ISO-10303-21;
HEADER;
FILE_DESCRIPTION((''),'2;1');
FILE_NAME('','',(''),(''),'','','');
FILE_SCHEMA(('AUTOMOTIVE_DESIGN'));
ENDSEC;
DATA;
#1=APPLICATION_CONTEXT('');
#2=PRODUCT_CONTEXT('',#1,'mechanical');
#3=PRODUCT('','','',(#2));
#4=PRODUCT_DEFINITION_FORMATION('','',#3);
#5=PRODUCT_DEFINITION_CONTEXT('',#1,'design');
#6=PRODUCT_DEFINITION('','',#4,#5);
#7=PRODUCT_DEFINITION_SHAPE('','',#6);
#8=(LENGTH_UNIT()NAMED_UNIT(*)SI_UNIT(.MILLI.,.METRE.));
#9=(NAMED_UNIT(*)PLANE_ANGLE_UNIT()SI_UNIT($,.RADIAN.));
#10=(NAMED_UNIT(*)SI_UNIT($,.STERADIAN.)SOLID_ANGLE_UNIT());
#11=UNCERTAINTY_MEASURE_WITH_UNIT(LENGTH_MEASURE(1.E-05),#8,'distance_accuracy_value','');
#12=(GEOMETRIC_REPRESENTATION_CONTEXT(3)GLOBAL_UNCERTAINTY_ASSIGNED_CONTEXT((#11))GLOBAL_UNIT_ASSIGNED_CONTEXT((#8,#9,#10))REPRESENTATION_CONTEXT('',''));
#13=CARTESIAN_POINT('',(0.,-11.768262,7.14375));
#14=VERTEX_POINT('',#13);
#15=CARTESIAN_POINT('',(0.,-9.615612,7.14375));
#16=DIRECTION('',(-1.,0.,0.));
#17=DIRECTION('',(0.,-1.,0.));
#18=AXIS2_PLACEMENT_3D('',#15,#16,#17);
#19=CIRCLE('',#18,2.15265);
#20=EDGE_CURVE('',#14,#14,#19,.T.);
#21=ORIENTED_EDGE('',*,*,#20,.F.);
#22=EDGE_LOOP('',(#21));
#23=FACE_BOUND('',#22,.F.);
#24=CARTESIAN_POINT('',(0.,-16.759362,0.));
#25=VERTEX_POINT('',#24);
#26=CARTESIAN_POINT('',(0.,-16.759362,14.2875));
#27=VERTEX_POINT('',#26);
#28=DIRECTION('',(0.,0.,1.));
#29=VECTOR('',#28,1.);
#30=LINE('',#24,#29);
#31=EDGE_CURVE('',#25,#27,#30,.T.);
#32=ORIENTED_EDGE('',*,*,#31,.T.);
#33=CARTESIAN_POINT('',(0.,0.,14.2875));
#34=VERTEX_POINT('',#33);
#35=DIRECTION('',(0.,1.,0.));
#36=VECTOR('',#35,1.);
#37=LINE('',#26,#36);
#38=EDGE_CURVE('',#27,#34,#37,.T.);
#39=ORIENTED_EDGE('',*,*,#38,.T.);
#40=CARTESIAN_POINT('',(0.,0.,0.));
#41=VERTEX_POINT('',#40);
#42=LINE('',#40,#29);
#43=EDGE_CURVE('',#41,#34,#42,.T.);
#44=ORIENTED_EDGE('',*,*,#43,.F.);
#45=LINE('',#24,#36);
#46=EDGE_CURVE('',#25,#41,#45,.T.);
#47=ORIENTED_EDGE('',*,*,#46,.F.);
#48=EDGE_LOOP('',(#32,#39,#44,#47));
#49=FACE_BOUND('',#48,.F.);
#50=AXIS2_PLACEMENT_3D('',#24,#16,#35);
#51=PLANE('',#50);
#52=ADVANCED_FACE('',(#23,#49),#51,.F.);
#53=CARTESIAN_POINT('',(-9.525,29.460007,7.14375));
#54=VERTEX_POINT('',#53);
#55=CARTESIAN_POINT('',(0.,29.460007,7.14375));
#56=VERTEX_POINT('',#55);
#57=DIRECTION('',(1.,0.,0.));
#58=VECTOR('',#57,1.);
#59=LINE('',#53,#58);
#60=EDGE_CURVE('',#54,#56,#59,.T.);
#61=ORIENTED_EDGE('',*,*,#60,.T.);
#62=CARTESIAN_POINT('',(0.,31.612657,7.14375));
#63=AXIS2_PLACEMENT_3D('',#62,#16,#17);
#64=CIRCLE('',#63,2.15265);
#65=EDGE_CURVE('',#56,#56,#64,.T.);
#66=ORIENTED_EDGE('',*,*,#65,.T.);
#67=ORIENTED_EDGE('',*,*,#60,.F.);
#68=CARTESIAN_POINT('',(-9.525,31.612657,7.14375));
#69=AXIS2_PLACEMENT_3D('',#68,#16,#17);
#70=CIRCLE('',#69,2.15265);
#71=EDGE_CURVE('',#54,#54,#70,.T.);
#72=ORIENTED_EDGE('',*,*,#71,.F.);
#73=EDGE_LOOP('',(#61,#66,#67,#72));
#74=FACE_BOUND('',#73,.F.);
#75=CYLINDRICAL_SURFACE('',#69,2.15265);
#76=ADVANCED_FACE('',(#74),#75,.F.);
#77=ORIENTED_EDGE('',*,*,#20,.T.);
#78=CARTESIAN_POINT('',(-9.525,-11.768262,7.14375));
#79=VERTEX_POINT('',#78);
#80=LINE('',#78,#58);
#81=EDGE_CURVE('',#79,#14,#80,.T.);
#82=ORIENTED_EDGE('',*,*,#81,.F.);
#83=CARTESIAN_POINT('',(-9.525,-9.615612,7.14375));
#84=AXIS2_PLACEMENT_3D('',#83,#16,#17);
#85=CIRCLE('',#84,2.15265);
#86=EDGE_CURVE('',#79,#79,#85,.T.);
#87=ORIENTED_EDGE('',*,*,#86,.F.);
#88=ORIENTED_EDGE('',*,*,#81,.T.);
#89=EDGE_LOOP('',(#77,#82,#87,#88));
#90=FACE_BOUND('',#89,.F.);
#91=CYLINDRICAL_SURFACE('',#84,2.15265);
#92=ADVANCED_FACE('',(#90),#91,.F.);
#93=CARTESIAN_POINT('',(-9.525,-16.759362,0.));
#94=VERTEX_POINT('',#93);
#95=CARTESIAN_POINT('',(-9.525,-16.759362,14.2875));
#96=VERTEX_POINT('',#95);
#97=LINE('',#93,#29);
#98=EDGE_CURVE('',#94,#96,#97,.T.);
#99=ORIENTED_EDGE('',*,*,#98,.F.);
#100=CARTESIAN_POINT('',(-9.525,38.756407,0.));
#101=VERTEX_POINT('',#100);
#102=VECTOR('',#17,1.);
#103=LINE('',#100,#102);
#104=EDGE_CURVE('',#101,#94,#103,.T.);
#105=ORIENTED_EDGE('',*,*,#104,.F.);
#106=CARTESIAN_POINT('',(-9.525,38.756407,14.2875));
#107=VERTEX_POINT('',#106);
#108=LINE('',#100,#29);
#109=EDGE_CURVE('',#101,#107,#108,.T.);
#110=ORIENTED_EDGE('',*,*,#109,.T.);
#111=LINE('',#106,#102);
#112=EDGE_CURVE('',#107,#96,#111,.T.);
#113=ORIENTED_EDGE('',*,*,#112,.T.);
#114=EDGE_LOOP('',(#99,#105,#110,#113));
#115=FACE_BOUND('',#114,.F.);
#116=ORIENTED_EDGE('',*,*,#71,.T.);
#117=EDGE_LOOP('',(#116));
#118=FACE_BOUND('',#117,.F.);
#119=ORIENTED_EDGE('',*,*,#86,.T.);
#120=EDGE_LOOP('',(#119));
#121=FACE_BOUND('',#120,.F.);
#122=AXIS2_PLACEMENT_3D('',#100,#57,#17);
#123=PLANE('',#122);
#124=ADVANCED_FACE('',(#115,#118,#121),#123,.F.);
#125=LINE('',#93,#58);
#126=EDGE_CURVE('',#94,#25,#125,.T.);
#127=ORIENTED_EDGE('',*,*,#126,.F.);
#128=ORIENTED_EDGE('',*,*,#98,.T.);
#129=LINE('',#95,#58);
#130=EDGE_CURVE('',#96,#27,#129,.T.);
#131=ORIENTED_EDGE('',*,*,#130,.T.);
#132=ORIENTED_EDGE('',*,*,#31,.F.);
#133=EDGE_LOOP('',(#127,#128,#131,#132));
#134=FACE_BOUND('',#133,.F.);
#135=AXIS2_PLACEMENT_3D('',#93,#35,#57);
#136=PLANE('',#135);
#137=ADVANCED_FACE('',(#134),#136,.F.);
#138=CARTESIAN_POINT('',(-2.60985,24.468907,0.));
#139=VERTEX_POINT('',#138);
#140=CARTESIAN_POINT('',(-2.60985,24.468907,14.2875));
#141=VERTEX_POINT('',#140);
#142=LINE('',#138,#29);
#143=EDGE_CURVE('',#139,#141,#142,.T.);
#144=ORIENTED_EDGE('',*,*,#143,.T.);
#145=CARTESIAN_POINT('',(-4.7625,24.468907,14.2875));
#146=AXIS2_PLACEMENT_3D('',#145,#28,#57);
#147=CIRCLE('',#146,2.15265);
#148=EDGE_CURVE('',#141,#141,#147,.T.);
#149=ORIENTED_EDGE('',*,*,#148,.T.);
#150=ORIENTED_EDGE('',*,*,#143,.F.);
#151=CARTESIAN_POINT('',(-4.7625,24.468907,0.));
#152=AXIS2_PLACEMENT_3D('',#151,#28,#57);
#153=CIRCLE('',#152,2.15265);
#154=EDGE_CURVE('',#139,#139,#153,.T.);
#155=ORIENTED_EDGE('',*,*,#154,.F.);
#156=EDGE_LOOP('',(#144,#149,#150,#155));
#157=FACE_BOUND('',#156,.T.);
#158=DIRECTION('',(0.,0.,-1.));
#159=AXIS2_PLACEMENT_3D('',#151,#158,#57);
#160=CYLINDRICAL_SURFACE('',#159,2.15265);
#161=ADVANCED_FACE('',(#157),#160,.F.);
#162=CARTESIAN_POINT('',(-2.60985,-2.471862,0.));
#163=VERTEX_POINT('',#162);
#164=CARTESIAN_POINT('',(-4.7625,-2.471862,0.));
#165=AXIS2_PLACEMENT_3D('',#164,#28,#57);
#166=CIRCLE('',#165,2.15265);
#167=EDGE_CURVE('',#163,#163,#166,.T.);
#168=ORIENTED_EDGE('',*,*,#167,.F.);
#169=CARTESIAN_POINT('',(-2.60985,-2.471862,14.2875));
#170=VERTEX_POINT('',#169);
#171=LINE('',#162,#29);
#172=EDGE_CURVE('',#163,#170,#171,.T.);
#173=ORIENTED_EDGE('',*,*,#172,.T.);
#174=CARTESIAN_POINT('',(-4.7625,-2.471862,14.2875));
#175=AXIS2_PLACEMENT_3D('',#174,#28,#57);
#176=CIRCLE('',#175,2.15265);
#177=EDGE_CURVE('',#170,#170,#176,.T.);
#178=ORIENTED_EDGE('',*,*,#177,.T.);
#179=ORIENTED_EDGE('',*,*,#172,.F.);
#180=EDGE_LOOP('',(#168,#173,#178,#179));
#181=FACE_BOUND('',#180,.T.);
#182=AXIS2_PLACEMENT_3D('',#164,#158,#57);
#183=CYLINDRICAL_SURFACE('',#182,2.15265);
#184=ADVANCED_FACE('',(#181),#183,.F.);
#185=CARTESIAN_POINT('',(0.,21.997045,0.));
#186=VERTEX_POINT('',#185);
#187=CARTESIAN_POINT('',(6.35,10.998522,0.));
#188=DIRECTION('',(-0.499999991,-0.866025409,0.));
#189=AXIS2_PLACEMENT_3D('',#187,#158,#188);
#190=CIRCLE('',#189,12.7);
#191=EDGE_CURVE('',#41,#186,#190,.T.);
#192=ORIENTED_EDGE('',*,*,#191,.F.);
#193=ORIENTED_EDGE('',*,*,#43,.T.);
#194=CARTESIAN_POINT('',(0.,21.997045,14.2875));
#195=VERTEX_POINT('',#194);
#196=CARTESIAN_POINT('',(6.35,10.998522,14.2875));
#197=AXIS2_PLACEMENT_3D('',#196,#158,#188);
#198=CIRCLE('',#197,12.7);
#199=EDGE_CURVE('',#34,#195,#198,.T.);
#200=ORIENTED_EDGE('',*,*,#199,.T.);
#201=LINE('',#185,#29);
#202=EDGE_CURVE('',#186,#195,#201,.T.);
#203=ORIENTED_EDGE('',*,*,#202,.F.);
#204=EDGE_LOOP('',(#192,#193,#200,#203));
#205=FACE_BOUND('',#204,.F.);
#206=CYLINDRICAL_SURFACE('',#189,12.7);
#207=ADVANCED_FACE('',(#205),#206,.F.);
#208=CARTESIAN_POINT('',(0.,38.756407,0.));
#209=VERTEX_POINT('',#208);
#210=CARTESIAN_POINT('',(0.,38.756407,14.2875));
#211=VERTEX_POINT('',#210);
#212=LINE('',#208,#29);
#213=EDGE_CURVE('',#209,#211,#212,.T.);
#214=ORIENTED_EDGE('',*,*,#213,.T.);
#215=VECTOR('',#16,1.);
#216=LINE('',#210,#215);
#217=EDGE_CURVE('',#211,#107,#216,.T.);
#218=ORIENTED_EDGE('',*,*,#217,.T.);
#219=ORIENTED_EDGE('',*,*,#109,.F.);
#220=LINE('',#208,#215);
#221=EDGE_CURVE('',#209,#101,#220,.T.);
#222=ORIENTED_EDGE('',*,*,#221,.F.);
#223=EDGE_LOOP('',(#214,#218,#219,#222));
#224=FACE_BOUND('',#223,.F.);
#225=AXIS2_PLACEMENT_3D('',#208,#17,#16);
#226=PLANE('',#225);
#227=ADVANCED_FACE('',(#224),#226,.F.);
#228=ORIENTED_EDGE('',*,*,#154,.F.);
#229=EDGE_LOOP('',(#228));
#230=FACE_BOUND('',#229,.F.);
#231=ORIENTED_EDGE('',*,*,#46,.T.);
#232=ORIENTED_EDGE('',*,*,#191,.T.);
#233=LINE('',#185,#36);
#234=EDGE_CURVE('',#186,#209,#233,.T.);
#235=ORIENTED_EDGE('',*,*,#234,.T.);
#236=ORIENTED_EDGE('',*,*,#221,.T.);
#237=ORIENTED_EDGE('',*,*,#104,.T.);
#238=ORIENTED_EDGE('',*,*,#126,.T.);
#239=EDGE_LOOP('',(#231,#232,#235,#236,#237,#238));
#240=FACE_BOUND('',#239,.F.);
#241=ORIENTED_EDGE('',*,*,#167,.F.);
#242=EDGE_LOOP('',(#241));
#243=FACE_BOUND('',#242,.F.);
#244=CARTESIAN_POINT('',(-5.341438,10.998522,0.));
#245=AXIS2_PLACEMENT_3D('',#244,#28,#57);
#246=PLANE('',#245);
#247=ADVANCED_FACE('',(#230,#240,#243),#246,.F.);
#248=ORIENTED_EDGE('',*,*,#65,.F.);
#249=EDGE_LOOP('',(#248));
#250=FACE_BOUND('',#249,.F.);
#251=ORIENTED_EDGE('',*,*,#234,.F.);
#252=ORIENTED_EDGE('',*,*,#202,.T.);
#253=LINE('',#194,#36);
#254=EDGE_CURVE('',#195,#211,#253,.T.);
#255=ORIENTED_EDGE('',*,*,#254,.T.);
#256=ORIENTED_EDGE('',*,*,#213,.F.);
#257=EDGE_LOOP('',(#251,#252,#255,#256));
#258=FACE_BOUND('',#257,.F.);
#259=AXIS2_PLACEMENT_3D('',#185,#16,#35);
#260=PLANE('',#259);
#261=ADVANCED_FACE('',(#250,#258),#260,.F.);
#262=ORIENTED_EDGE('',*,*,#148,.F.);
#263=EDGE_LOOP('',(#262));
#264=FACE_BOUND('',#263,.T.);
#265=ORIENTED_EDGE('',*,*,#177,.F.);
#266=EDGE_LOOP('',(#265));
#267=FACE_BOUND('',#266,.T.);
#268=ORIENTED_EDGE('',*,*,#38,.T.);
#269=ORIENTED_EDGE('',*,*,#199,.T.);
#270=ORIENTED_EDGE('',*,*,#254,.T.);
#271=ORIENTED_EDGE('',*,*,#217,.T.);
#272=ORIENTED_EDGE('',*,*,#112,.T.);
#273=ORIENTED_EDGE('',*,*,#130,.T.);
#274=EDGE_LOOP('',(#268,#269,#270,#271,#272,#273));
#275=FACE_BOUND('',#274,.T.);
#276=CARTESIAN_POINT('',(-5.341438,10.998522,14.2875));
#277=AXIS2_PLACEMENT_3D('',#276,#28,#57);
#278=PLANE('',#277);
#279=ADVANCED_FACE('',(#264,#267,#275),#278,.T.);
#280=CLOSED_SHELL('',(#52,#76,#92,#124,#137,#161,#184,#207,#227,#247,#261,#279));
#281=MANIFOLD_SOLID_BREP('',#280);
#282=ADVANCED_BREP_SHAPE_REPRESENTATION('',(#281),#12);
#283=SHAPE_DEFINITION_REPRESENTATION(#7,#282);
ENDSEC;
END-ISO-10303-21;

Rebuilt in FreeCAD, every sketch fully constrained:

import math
import FreeCAD as App
import Part
import Sketcher
Q = App.Units.Quantity

doc = App.newDocument("Part")
body = doc.addObject("PartDesign::Body", "Body")

sketch1 = doc.addObject("Sketcher::SketchObject", "Sketch")
body.addObject(sketch1)
sketch1.AttachmentSupport = (doc.XY_Plane, [""])
sketch1.MapMode = "FlatFace"
sketch1.addGeometry([
    Part.ArcOfCircle(Part.Circle(App.Vector(6.3, 11, 0), App.Vector(0, 0, 1), 12.7), math.radians(120), math.radians(240)),
    Part.LineSegment(App.Vector(0, 22, 0), App.Vector(0, 38.8, 0)),
    Part.LineSegment(App.Vector(0, 38.8, 0), App.Vector(-9.5, 38.8, 0)),
    Part.LineSegment(App.Vector(-9.5, 38.8, 0), App.Vector(-9.5, -16.8, 0)),
    Part.LineSegment(App.Vector(-9.5, -16.8, 0), App.Vector(0, -16.8, 0)),
    Part.LineSegment(App.Vector(0, -16.8, 0), App.Vector(0, 0, 0)),
    Part.Circle(App.Vector(-4.8, -2.5, 0), App.Vector(0, 0, 1), 2.2),
    Part.Circle(App.Vector(-4.8, 24.5, 0), App.Vector(0, 0, 1), 2.2),
], False)
sketch1.addConstraint([
    Sketcher.Constraint("Coincident", 0, 1, 1, 1),
    Sketcher.Constraint("Coincident", 1, 2, 2, 1),
    Sketcher.Constraint("Coincident", 2, 2, 3, 1),
    Sketcher.Constraint("Coincident", 3, 2, 4, 1),
    Sketcher.Constraint("Coincident", 4, 2, 5, 1),
    Sketcher.Constraint("Coincident", 5, 2, 0, 2),
    Sketcher.Constraint("Vertical", 1),
    Sketcher.Constraint("Horizontal", 2),
    Sketcher.Constraint("Vertical", 3),
    Sketcher.Constraint("Horizontal", 4),
    Sketcher.Constraint("Vertical", 5),
    Sketcher.Constraint("Coincident", 5, 2, -1, 1),
    Sketcher.Constraint("Equal", 6, 7),
    Sketcher.Constraint("PointOnObject", 0, 1, -2),
    Sketcher.Constraint("Vertical", 6, 3, 7, 3),
    Sketcher.Constraint("Equal", 1, 5),
    Sketcher.Constraint("Radius", 0, Q("0.5 in")),
    Sketcher.Constraint("Diameter", 6, Q("0.1695 in")),
    Sketcher.Constraint("DistanceX", 2, 2, 2, 1, Q("0.375 in")),
    Sketcher.Constraint("DistanceX", -1, 1, 0, 3, Q("0.25 in")),
    Sketcher.Constraint("DistanceX", 6, 3, -1, 1, Q("0.1875 in")),
    Sketcher.Constraint("DistanceY", 7, 3, 1, 2, Q("0.5625 in")),
    Sketcher.Constraint("DistanceY", 3, 2, 6, 3, Q("0.5625 in")),
    Sketcher.Constraint("DistanceY", 3, 2, 3, 1, Q("55.515769 mm")),
])
pad1 = doc.addObject("PartDesign::Pad", "Pad")
body.addObject(pad1)
pad1.Profile = sketch1
pad1.Length = Q("0.5625 in")

sketch2 = doc.addObject("Sketcher::SketchObject", "Sketch001")
body.addObject(sketch2)
sketch2.AttachmentSupport = (doc.YZ_Plane, [""])
sketch2.MapMode = "FlatFace"
sketch2.AttachmentOffset = App.Placement(App.Vector(0, 0, -0.375 * 25.4), App.Rotation())
sketch2.addGeometry([
    Part.Circle(App.Vector(-9.6, 7.1, 0), App.Vector(0, 0, 1), 2.2),
    Part.Circle(App.Vector(31.6, 7.1, 0), App.Vector(0, 0, 1), 2.2),
], False)
sketch2.addConstraint([
    Sketcher.Constraint("Equal", 0, 1),
    Sketcher.Constraint("Horizontal", 0, 3, 1, 3),
    Sketcher.Constraint("Diameter", 0, Q("0.1695 in")),
    Sketcher.Constraint("DistanceY", -1, 1, 0, 3, Q("0.28125 in")),
    Sketcher.Constraint("DistanceX", 0, 3, 1, 3, Q("41.228269 mm")),
    Sketcher.Constraint("DistanceX", 0, 3, -1, 1, Q("9.615612 mm")),
])
pocket1 = doc.addObject("PartDesign::Pocket", "Pocket")
body.addObject(pocket1)
pocket1.Profile = sketch2
pocket1.Type = "ThroughAll"
pocket1.Reversed = True

doc.recompute()
